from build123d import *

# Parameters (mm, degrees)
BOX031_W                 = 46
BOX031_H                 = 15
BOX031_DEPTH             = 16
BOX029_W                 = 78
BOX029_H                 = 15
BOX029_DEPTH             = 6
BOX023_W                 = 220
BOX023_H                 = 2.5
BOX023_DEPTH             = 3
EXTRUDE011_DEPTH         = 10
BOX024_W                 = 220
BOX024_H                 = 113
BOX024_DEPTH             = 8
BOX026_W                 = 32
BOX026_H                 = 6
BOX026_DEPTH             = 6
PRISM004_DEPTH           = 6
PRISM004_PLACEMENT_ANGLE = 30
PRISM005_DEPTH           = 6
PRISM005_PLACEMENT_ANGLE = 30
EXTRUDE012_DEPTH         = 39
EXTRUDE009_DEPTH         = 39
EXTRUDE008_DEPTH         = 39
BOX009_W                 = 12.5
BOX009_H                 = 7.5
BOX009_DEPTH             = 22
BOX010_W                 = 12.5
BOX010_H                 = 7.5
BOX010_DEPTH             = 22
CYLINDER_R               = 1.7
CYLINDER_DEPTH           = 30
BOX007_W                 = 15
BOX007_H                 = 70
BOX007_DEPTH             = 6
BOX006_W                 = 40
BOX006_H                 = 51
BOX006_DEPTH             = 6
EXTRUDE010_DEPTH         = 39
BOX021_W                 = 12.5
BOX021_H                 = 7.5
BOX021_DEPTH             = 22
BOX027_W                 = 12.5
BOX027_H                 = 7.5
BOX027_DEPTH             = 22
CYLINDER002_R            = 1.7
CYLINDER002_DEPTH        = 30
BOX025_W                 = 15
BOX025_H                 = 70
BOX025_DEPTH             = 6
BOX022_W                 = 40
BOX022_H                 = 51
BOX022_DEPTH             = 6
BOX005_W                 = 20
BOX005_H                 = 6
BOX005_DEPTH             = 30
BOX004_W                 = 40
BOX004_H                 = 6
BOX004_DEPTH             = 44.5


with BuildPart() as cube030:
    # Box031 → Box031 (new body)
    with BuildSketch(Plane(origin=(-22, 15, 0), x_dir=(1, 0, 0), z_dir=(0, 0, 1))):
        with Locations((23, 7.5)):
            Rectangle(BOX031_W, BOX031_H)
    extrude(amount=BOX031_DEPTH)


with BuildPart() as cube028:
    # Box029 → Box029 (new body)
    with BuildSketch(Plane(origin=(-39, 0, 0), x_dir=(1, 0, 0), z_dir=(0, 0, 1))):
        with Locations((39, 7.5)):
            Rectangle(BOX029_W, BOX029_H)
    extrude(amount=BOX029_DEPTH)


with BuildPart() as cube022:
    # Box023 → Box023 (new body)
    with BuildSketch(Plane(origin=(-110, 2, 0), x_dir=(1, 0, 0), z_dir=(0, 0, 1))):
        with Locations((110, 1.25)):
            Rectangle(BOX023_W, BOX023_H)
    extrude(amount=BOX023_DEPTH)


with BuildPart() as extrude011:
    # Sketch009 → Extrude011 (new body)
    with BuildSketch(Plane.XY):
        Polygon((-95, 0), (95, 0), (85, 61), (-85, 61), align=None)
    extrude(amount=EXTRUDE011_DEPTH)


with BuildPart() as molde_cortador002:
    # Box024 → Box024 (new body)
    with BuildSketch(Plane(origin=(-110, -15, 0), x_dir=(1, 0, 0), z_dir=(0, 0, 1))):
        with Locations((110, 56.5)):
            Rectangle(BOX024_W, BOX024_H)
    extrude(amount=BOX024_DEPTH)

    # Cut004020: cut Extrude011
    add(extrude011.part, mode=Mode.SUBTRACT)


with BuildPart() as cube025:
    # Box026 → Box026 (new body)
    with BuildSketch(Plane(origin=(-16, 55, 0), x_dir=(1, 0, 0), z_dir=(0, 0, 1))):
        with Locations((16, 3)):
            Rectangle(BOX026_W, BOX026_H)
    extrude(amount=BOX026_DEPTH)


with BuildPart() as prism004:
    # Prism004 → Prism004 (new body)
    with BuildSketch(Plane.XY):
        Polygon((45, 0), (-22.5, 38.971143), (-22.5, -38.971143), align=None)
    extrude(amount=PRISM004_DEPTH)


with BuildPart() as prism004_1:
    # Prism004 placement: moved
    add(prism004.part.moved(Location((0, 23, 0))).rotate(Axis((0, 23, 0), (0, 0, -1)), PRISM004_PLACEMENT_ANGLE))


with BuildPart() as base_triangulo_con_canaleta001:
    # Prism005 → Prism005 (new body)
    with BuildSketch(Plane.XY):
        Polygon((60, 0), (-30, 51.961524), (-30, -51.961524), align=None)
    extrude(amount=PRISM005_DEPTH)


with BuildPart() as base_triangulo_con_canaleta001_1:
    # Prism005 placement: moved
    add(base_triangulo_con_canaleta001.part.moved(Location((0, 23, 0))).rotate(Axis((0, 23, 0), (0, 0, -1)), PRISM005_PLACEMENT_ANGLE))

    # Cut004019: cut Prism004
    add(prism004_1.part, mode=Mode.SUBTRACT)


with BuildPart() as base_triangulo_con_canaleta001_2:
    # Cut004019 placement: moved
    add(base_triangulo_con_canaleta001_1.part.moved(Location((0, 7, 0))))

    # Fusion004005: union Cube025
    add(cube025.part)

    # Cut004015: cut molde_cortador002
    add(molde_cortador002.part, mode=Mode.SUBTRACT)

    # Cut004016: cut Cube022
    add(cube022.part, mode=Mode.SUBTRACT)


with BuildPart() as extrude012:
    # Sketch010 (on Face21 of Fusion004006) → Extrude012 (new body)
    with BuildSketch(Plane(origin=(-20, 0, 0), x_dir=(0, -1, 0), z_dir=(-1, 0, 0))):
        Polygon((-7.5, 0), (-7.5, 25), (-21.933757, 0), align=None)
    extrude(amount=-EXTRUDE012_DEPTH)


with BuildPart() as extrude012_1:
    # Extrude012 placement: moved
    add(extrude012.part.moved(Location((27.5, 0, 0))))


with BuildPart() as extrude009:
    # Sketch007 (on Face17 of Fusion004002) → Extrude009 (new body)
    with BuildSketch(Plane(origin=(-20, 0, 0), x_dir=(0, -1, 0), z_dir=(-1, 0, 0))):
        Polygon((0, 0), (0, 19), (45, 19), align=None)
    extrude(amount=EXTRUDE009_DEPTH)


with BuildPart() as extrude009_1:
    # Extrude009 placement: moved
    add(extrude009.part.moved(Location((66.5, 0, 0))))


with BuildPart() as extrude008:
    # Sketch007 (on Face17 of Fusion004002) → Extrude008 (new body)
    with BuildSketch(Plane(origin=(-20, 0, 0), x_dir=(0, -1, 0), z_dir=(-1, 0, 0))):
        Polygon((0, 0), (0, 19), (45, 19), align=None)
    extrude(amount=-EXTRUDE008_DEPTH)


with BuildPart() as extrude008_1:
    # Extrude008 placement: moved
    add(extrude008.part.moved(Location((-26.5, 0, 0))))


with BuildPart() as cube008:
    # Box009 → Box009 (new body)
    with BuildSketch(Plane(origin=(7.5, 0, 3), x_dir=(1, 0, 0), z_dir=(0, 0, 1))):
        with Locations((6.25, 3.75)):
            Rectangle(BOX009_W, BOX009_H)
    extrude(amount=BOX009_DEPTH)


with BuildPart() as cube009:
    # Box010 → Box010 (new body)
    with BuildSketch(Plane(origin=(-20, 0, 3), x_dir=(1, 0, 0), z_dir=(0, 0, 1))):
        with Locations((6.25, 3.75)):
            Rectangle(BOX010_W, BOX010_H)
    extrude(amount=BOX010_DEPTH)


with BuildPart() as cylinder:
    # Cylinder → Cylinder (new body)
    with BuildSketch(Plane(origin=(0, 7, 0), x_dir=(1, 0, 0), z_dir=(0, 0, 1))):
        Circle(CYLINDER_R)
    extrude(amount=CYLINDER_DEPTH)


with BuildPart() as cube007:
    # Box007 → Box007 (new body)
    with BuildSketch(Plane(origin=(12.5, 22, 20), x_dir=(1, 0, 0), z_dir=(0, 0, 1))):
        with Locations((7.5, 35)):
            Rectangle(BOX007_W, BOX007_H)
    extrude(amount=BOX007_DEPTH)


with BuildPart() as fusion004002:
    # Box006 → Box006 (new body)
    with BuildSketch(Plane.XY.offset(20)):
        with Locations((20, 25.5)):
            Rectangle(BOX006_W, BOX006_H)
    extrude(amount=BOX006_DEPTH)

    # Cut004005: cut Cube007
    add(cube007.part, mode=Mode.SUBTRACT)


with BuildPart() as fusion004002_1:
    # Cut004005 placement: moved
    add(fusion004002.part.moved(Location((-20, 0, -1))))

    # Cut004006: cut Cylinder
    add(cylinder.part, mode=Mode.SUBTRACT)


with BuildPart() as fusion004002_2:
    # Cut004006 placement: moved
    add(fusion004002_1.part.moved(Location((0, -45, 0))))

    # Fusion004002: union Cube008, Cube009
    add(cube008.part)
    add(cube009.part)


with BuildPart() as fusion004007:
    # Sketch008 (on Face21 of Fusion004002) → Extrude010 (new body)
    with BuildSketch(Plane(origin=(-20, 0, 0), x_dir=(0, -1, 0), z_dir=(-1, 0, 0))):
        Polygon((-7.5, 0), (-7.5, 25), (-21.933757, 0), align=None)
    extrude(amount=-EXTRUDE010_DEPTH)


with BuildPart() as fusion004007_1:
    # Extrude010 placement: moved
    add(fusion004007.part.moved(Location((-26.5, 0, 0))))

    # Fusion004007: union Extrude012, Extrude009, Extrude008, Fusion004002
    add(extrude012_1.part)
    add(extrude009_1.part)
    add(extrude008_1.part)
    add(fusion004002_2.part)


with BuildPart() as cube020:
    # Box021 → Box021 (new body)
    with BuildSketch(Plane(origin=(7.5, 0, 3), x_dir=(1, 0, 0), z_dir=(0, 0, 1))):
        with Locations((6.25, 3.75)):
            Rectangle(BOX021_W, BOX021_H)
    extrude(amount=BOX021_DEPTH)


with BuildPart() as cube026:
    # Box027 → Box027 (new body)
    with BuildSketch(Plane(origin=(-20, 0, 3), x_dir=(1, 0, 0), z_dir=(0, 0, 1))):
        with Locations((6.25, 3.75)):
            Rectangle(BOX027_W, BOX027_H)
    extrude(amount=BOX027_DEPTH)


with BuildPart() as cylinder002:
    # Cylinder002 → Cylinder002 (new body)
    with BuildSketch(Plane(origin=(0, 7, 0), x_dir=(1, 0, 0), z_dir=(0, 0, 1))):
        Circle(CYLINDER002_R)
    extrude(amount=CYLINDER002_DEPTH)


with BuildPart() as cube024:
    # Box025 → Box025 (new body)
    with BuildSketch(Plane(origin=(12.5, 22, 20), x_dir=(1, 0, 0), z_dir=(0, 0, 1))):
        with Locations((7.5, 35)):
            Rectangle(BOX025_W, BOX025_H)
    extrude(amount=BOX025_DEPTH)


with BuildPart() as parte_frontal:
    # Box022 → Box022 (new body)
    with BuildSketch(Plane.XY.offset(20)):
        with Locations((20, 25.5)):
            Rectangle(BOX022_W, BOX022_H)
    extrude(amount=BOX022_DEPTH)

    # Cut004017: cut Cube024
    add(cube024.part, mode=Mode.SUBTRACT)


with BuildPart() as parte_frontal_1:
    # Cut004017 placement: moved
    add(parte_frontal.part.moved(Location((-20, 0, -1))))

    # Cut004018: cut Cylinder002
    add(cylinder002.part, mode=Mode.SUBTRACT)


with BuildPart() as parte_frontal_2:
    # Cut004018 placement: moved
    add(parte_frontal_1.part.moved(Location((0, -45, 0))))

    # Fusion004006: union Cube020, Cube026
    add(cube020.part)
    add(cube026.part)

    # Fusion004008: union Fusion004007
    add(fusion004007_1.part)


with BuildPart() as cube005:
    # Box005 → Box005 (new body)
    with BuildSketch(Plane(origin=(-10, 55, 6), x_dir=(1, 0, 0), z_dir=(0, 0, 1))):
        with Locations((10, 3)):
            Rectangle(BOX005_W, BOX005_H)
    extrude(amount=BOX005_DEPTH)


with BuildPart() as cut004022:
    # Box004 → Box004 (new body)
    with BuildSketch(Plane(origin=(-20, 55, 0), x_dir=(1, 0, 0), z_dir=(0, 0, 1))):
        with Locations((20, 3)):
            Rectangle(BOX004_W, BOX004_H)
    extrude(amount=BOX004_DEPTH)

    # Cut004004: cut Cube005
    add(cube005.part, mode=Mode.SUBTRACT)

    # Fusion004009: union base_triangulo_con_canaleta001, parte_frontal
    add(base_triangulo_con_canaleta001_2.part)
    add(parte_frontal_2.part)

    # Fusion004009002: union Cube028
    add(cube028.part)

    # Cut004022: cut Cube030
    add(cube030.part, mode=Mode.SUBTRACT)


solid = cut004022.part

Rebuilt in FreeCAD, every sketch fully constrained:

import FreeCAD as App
import Part
import Sketcher

V = App.Vector
Q = App.Units.Quantity

doc = App.newDocument("Part")
body = doc.addObject("PartDesign::Body", "Body")

# Sketch on XY plane
sketch1 = body.newObject("Sketcher::SketchObject", "Sketch")
sketch1.AttachmentSupport = (doc.getObject("XY_Plane"), [""])
sketch1.MapMode = "FlatFace"
sketch1.addGeometry([
    Part.LineSegment(V(-22, 30, 0), V(-22, 15, 0)),
    Part.LineSegment(V(-22, 15, 0), V(24, 15, 0)),
    Part.LineSegment(V(24, 15, 0), V(24, 30, 0)),
    Part.LineSegment(V(24, 30, 0), V(-22, 30, 0)),
], False)
sketch1.addConstraint([
    Sketcher.Constraint("Coincident", 0, 2, 1, 1),
    Sketcher.Constraint("Coincident", 1, 2, 2, 1),
    Sketcher.Constraint("Coincident", 2, 2, 3, 1),
    Sketcher.Constraint("Coincident", 3, 2, 0, 1),
    Sketcher.Constraint("Vertical", 0),
    Sketcher.Constraint("Horizontal", 1),
    Sketcher.Constraint("Vertical", 2),
    Sketcher.Constraint("Horizontal", 3),
    Sketcher.Constraint("DistanceX", 1, 1, 1, 2, 46.0),
    Sketcher.Constraint("DistanceY", 0, 2, 0, 1, 15.0),
    Sketcher.Constraint("DistanceX", 0, 2, -1, 1, 22.0),
    Sketcher.Constraint("DistanceY", -1, 1, 0, 2, 15.0),
])
pad1 = body.newObject("PartDesign::Pad", "Pad")
pad1.Profile = sketch1
pad1.Length = 16
body2 = doc.addObject("PartDesign::Body", "Body001")

# Sketch on XY plane
sketch2 = body2.newObject("Sketcher::SketchObject", "Sketch001")
sketch2.AttachmentSupport = (doc.getObject("XY_Plane001"), [""])
sketch2.MapMode = "FlatFace"
sketch2.addGeometry([
    Part.LineSegment(V(-39, 15, 0), V(-39, 0, 0)),
    Part.LineSegment(V(-39, 0, 0), V(39, 0, 0)),
    Part.LineSegment(V(39, 0, 0), V(39, 15, 0)),
    Part.LineSegment(V(39, 15, 0), V(-39, 15, 0)),
], False)
sketch2.addConstraint([
    Sketcher.Constraint("Coincident", 0, 2, 1, 1),
    Sketcher.Constraint("Coincident", 1, 2, 2, 1),
    Sketcher.Constraint("Coincident", 2, 2, 3, 1),
    Sketcher.Constraint("Coincident", 3, 2, 0, 1),
    Sketcher.Constraint("Vertical", 0),
    Sketcher.Constraint("Horizontal", 1),
    Sketcher.Constraint("Vertical", 2),
    Sketcher.Constraint("Horizontal", 3),
    Sketcher.Constraint("Symmetric", 0, 2, 1, 2, -1, 1),
    Sketcher.Constraint("DistanceX", 1, 1, 1, 2, 78.0),
    Sketcher.Constraint("DistanceY", 0, 2, 0, 1, 15.0),
])
pad2 = body2.newObject("PartDesign::Pad", "Pad001")
pad2.Profile = sketch2
pad2.Length = 6
body3 = doc.addObject("PartDesign::Body", "Body002")

# Sketch on XY plane
sketch3 = body3.newObject("Sketcher::SketchObject", "Sketch002")
sketch3.AttachmentSupport = (doc.getObject("XY_Plane002"), [""])
sketch3.MapMode = "FlatFace"
sketch3.addGeometry([
    Part.LineSegment(V(-110, 4.5, 0), V(-110, 2, 0)),
    Part.LineSegment(V(-110, 2, 0), V(110, 2, 0)),
    Part.LineSegment(V(110, 2, 0), V(110, 4.5, 0)),
    Part.LineSegment(V(110, 4.5, 0), V(-110, 4.5, 0)),
], False)
sketch3.addConstraint([
    Sketcher.Constraint("Coincident", 0, 2, 1, 1),
    Sketcher.Constraint("Coincident", 1, 2, 2, 1),
    Sketcher.Constraint("Coincident", 2, 2, 3, 1),
    Sketcher.Constraint("Coincident", 3, 2, 0, 1),
    Sketcher.Constraint("Vertical", 0),
    Sketcher.Constraint("Horizontal", 1),
    Sketcher.Constraint("Vertical", 2),
    Sketcher.Constraint("Horizontal", 3),
    Sketcher.Constraint("DistanceX", 1, 1, 1, 2, 220.0),
    Sketcher.Constraint("DistanceY", 0, 2, 0, 1, 2.5),
    Sketcher.Constraint("DistanceX", 0, 2, -1, 1, 110.0),
    Sketcher.Constraint("DistanceY", -1, 1, 0, 2, 2.0),
])
pad3 = body3.newObject("PartDesign::Pad", "Pad002")
pad3.Profile = sketch3
pad3.Length = 3
body4 = doc.addObject("PartDesign::Body", "Body003")

# Sketch on XY plane
sketch4 = body4.newObject("Sketcher::SketchObject", "Sketch003")
sketch4.AttachmentSupport = (doc.getObject("XY_Plane003"), [""])
sketch4.MapMode = "FlatFace"
sketch4.addGeometry([
    Part.LineSegment(V(-95, 0, 0), V(95, 0, 0)),
    Part.LineSegment(V(95, 0, 0), V(85, 61, 0)),
    Part.LineSegment(V(85, 61, 0), V(-85, 61, 0)),
    Part.LineSegment(V(-85, 61, 0), V(-95, 0, 0)),
], False)
sketch4.addConstraint([
    Sketcher.Constraint("Coincident", 0, 2, 1, 1),
    Sketcher.Constraint("Coincident", 1, 2, 2, 1),
    Sketcher.Constraint("Coincident", 2, 2, 3, 1),
    Sketcher.Constraint("Coincident", 3, 2, 0, 1),
    Sketcher.Constraint("Horizontal", 0),
    Sketcher.Constraint("Horizontal", 2),
    Sketcher.Constraint("Symmetric", 0, 2, 3, 2, -1, 1),
    Sketcher.Constraint("Equal", 1, 3),
    Sketcher.Constraint("DistanceX", 0, 1, 0, 2, 190.0),
    Sketcher.Constraint("DistanceX", 2, 2, 2, 1, 170.0),
    Sketcher.Constraint("DistanceY", -1, 1, 1, 2, 61.0),
])
pad4 = body4.newObject("PartDesign::Pad", "Pad003")
pad4.Profile = sketch4
pad4.Length = 10
body5 = doc.addObject("PartDesign::Body", "Body004")

# Sketch on XY plane
sketch5 = body5.newObject("Sketcher::SketchObject", "Sketch004")
sketch5.AttachmentSupport = (doc.getObject("XY_Plane004"), [""])
sketch5.MapMode = "FlatFace"
sketch5.addGeometry([
    Part.LineSegment(V(-110, 98, 0), V(-110, -15, 0)),
    Part.LineSegment(V(-110, -15, 0), V(110, -15, 0)),
    Part.LineSegment(V(110, -15, 0), V(110, 98, 0)),
    Part.LineSegment(V(110, 98, 0), V(-110, 98, 0)),
], False)
sketch5.addConstraint([
    Sketcher.Constraint("Coincident", 0, 2, 1, 1),
    Sketcher.Constraint("Coincident", 1, 2, 2, 1),
    Sketcher.Constraint("Coincident", 2, 2, 3, 1),
    Sketcher.Constraint("Coincident", 3, 2, 0, 1),
    Sketcher.Constraint("Vertical", 0),
    Sketcher.Constraint("Horizontal", 1),
    Sketcher.Constraint("Vertical", 2),
    Sketcher.Constraint("Horizontal", 3),
    Sketcher.Constraint("DistanceX", 1, 1, 1, 2, 220.0),
    Sketcher.Constraint("DistanceY", 0, 2, 0, 1, 113.0),
    Sketcher.Constraint("DistanceX", 0, 2, -1, 1, 110.0),
    Sketcher.Constraint("DistanceY", 0, 2, -1, 1, 15.0),
])
pad5 = body5.newObject("PartDesign::Pad", "Pad004")
pad5.Profile = sketch5
pad5.Length = 8
doc.recompute()

boolean = body5.newObject("PartDesign::Boolean", "Boolean")
boolean.Type = "Cut"
boolean.addObjects([body4])
body6 = doc.addObject("PartDesign::Body", "Body005")

# Sketch on XY plane
sketch6 = body6.newObject("Sketcher::SketchObject", "Sketch005")
sketch6.AttachmentSupport = (doc.getObject("XY_Plane005"), [""])
sketch6.MapMode = "FlatFace"
sketch6.addGeometry([
    Part.LineSegment(V(-16, 61, 0), V(-16, 55, 0)),
    Part.LineSegment(V(-16, 55, 0), V(16, 55, 0)),
    Part.LineSegment(V(16, 55, 0), V(16, 61, 0)),
    Part.LineSegment(V(16, 61, 0), V(-16, 61, 0)),
], False)
sketch6.addConstraint([
    Sketcher.Constraint("Coincident", 0, 2, 1, 1),
    Sketcher.Constraint("Coincident", 1, 2, 2, 1),
    Sketcher.Constraint("Coincident", 2, 2, 3, 1),
    Sketcher.Constraint("Coincident", 3, 2, 0, 1),
    Sketcher.Constraint("Vertical", 0),
    Sketcher.Constraint("Horizontal", 1),
    Sketcher.Constraint("Vertical", 2),
    Sketcher.Constraint("Horizontal", 3),
    Sketcher.Constraint("DistanceX", 1, 1, 1, 2, 32.0),
    Sketcher.Constraint("DistanceY", 0, 2, 0, 1, 6.0),
    Sketcher.Constraint("DistanceX", 0, 2, -1, 1, 16.0),
    Sketcher.Constraint("DistanceY", -1, 1, 0, 2, 55.0),
])
pad6 = body6.newObject("PartDesign::Pad", "Pad005")
pad6.Profile = sketch6
pad6.Length = 6
body7 = doc.addObject("PartDesign::Body", "Body006")

# Sketch on XY plane
sketch7 = body7.newObject("Sketcher::SketchObject", "Sketch006")
sketch7.AttachmentSupport = (doc.getObject("XY_Plane006"), [""])
sketch7.MapMode = "FlatFace"
sketch7.addGeometry([
    Part.LineSegment(V(45, 0, 0), V(-22.5, 38.971143, 0)),
    Part.LineSegment(V(-22.5, 38.971143, 0), V(-22.5, -38.971143, 0)),
    Part.LineSegment(V(-22.5, -38.971143, 0), V(45, 0, 0)),
], False)
sketch7.addConstraint([
    Sketcher.Constraint("Coincident", 0, 2, 1, 1),
    Sketcher.Constraint("Coincident", 1, 2, 2, 1),
    Sketcher.Constraint("Coincident", 2, 2, 0, 1),
    Sketcher.Constraint("Vertical", 1),
    Sketcher.Constraint("PointOnObject", 2, 2, -1),
    Sketcher.Constraint("Equal", 0, 2),
    Sketcher.Constraint("Angle", 0, Q("150 deg")),
    Sketcher.Constraint("DistanceX", -1, 1, 2, 2, 45.0),
    Sketcher.Constraint("DistanceX", 0, 2, -1, 1, 22.5),
])
pad7 = body7.newObject("PartDesign::Pad", "Pad006")
pad7.Profile = sketch7
pad7.Length = 6
body8 = doc.addObject("PartDesign::Body", "Body007")
doc.recompute()

body7.Placement = App.Placement(V(0, 23, 0), App.Rotation(V(0, 0, -1), 30))
boolean2 = body8.newObject("PartDesign::Boolean", "Boolean001")
boolean2.Type = "Fuse"
boolean2.addObjects([body7])
body9 = doc.addObject("PartDesign::Body", "Body008")

# Sketch on XY plane
sketch8 = body9.newObject("Sketcher::SketchObject", "Sketch007")
sketch8.AttachmentSupport = (doc.getObject("XY_Plane008"), [""])
sketch8.MapMode = "FlatFace"
sketch8.addGeometry([
    Part.LineSegment(V(60, 0, 0), V(-30, 51.961524, 0)),
    Part.LineSegment(V(-30, 51.961524, 0), V(-30, -51.961524, 0)),
    Part.LineSegment(V(-30, -51.961524, 0), V(60, 0, 0)),
], False)
sketch8.addConstraint([
    Sketcher.Constraint("Coincident", 0, 2, 1, 1),
    Sketcher.Constraint("Coincident", 1, 2, 2, 1),
    Sketcher.Constraint("Coincident", 2, 2, 0, 1),
    Sketcher.Constraint("Vertical", 1),
    Sketcher.Constraint("PointOnObject", 2, 2, -1),
    Sketcher.Constraint("Equal", 0, 2),
    Sketcher.Constraint("Angle", 0, Q("150 deg")),
    Sketcher.Constraint("DistanceX", 0, 2, -1, 1, 30.0),
    Sketcher.Constraint("DistanceX", -1, 1, 2, 2, 60.0),
])
pad8 = body9.newObject("PartDesign::Pad", "Pad007")
pad8.Profile = sketch8
pad8.Length = 6
body10 = doc.addObject("PartDesign::Body", "Body009")
doc.recompute()

body9.Placement = App.Placement(V(0, 23, 0), App.Rotation(V(0, 0, -1), 30))
boolean3 = body10.newObject("PartDesign::Boolean", "Boolean002")
boolean3.Type = "Fuse"
boolean3.addObjects([body9])
doc.recompute()

boolean4 = body10.newObject("PartDesign::Boolean", "Boolean003")
boolean4.Type = "Cut"
boolean4.addObjects([body8])
body11 = doc.addObject("PartDesign::Body", "Body010")
doc.recompute()

body10.Placement = App.Placement(V(0, 7, 0), App.Rotation(V(0, 0, 1), 0))
boolean5 = body11.newObject("PartDesign::Boolean", "Boolean004")
boolean5.Type = "Fuse"
boolean5.addObjects([body10])
doc.recompute()

boolean6 = body11.newObject("PartDesign::Boolean", "Boolean005")
boolean6.Type = "Fuse"
boolean6.addObjects([body6])
doc.recompute()

boolean7 = body11.newObject("PartDesign::Boolean", "Boolean006")
boolean7.Type = "Cut"
boolean7.addObjects([body5])
doc.recompute()

boolean8 = body11.newObject("PartDesign::Boolean", "Boolean007")
boolean8.Type = "Cut"
boolean8.addObjects([body3])
body12 = doc.addObject("PartDesign::Body", "Body011")

# Sketch on YZ plane
sketch9 = body12.newObject("Sketcher::SketchObject", "Sketch008")
sketch9.AttachmentSupport = (doc.getObject("YZ_Plane011"), [""])
sketch9.MapMode = "FlatFace"
sketch9.AttachmentOffset = App.Placement(V(0, 0, -20), App.Rotation())
sketch9.addGeometry([
    Part.LineSegment(V(7.5, 0, 0), V(7.5, 25, 0)),
    Part.LineSegment(V(7.5, 25, 0), V(21.933757, 0, 0)),
    Part.LineSegment(V(21.933757, 0, 0), V(7.5, 0, 0)),
], False)
sketch9.addConstraint([
    Sketcher.Constraint("Coincident", 0, 2, 1, 1),
    Sketcher.Constraint("Coincident", 1, 2, 2, 1),
    Sketcher.Constraint("Coincident", 2, 2, 0, 1),
    Sketcher.Constraint("Vertical", 0),
    Sketcher.Constraint("Horizontal", 2),
    Sketcher.Constraint("PointOnObject", 1, 2, -1),
    Sketcher.Constraint("DistanceY", 0, 1, 0, 2, 25.0),
    Sketcher.Constraint("Angle", 1, Q("-60 deg")),
    Sketcher.Constraint("DistanceX", -1, 1, 0, 2, 7.5),
])
pad9 = body12.newObject("PartDesign::Pad", "Pad008")
pad9.Profile = sketch9
pad9.Length = 39
body13 = doc.addObject("PartDesign::Body", "Body012")
doc.recompute()

body12.Placement = App.Placement(V(27.5, 0, 0), App.Rotation(V(0, 0, 1), 0))
boolean9 = body13.newObject("PartDesign::Boolean", "Boolean008")
boolean9.Type = "Fuse"
boolean9.addObjects([body12])
body14 = doc.addObject("PartDesign::Body", "Body013")

# Sketch on YZ plane
sketch10 = body14.newObject("Sketcher::SketchObject", "Sketch009")
sketch10.AttachmentSupport = (doc.getObject("YZ_Plane013"), [""])
sketch10.MapMode = "FlatFace"
sketch10.AttachmentOffset = App.Placement(V(0, 0, -20), App.Rotation())
sketch10.addGeometry([
    Part.LineSegment(V(0, 19, 0), V(0, 0, 0)),
    Part.LineSegment(V(0, 0, 0), V(-45, 19, 0)),
    Part.LineSegment(V(-45, 19, 0), V(0, 19, 0)),
], False)
sketch10.addConstraint([
    Sketcher.Constraint("Coincident", 0, 2, 1, 1),
    Sketcher.Constraint("Coincident", 1, 2, 2, 1),
    Sketcher.Constraint("Coincident", 2, 2, 0, 1),
    Sketcher.Constraint("Vertical", 0),
    Sketcher.Constraint("Horizontal", 2),
    Sketcher.Constraint("Coincident", 0, 2, -1, 1),
    Sketcher.Constraint("DistanceX", 2, 1, 2, 2, 45.0),
    Sketcher.Constraint("DistanceY", 0, 2, 0, 1, 19.0),
])
pad10 = body14.newObject("PartDesign::Pad", "Pad009")
pad10.Profile = sketch10
pad10.Length = 39
pad10.Reversed = True
body15 = doc.addObject("PartDesign::Body", "Body014")
doc.recompute()

body14.Placement = App.Placement(V(66.5, 0, 0), App.Rotation(V(0, 0, 1), 0))
boolean10 = body15.newObject("PartDesign::Boolean", "Boolean009")
boolean10.Type = "Fuse"
boolean10.addObjects([body14])
body16 = doc.addObject("PartDesign::Body", "Body015")

# Sketch on YZ plane
sketch11 = body16.newObject("Sketcher::SketchObject", "Sketch010")
sketch11.AttachmentSupport = (doc.getObject("YZ_Plane015"), [""])
sketch11.MapMode = "FlatFace"
sketch11.AttachmentOffset = App.Placement(V(0, 0, -20), App.Rotation())
sketch11.addGeometry([
    Part.LineSegment(V(0, 19, 0), V(0, 0, 0)),
    Part.LineSegment(V(0, 0, 0), V(-45, 19, 0)),
    Part.LineSegment(V(-45, 19, 0), V(0, 19, 0)),
], False)
sketch11.addConstraint([
    Sketcher.Constraint("Coincident", 0, 2, 1, 1),
    Sketcher.Constraint("Coincident", 1, 2, 2, 1),
    Sketcher.Constraint("Coincident", 2, 2, 0, 1),
    Sketcher.Constraint("Vertical", 0),
    Sketcher.Constraint("Horizontal", 2),
    Sketcher.Constraint("Coincident", 0, 2, -1, 1),
    Sketcher.Constraint("DistanceX", 2, 1, 2, 2, 45.0),
    Sketcher.Constraint("DistanceY", 0, 2, 0, 1, 19.0),
])
pad11 = body16.newObject("PartDesign::Pad", "Pad010")
pad11.Profile = sketch11
pad11.Length = 39
body17 = doc.addObject("PartDesign::Body", "Body016")
doc.recompute()

body16.Placement = App.Placement(V(-26.5, 0, 0), App.Rotation(V(0, 0, 1), 0))
boolean11 = body17.newObject("PartDesign::Boolean", "Boolean010")
boolean11.Type = "Fuse"
boolean11.addObjects([body16])
body18 = doc.addObject("PartDesign::Body", "Body017")

# Sketch on XY plane
sketch12 = body18.newObject("Sketcher::SketchObject", "Sketch011")
sketch12.AttachmentSupport = (doc.getObject("XY_Plane017"), [""])
sketch12.MapMode = "FlatFace"
sketch12.AttachmentOffset = App.Placement(V(0, 0, 3), App.Rotation())
sketch12.addGeometry([
    Part.LineSegment(V(7.5, 7.5, 0), V(7.5, 0, 0)),
    Part.LineSegment(V(7.5, 0, 0), V(20, 0, 0)),
    Part.LineSegment(V(20, 0, 0), V(20, 7.5, 0)),
    Part.LineSegment(V(20, 7.5, 0), V(7.5, 7.5, 0)),
], False)
sketch12.addConstraint([
    Sketcher.Constraint("Coincident", 0, 2, 1, 1),
    Sketcher.Constraint("Coincident", 1, 2, 2, 1),
    Sketcher.Constraint("Coincident", 2, 2, 3, 1),
    Sketcher.Constraint("Coincident", 3, 2, 0, 1),
    Sketcher.Constraint("Vertical", 0),
    Sketcher.Constraint("Horizontal", 1),
    Sketcher.Constraint("Vertical", 2),
    Sketcher.Constraint("Horizontal", 3),
    Sketcher.Constraint("PointOnObject", 0, 2, -1),
    Sketcher.Constraint("DistanceX", 1, 1, 1, 2, 12.5),
    Sketcher.Constraint("DistanceY", 0, 2, 0, 1, 7.5),
    Sketcher.Constraint("DistanceX", -1, 1, 1, 2, 20.0),
])
pad12 = body18.newObject("PartDesign::Pad", "Pad011")
pad12.Profile = sketch12
pad12.Length = 22
body19 = doc.addObject("PartDesign::Body", "Body018")

# Sketch on XY plane
sketch13 = body19.newObject("Sketcher::SketchObject", "Sketch012")
sketch13.AttachmentSupport = (doc.getObject("XY_Plane018"), [""])
sketch13.MapMode = "FlatFace"
sketch13.AttachmentOffset = App.Placement(V(0, 0, 3), App.Rotation())
sketch13.addGeometry([
    Part.LineSegment(V(-20, 7.5, 0), V(-20, 0, 0)),
    Part.LineSegment(V(-20, 0, 0), V(-7.5, 0, 0)),
    Part.LineSegment(V(-7.5, 0, 0), V(-7.5, 7.5, 0)),
    Part.LineSegment(V(-7.5, 7.5, 0), V(-20, 7.5, 0)),
], False)
sketch13.addConstraint([
    Sketcher.Constraint("Coincident", 0, 2, 1, 1),
    Sketcher.Constraint("Coincident", 1, 2, 2, 1),
    Sketcher.Constraint("Coincident", 2, 2, 3, 1),
    Sketcher.Constraint("Coincident", 3, 2, 0, 1),
    Sketcher.Constraint("Vertical", 0),
    Sketcher.Constraint("Horizontal", 1),
    Sketcher.Constraint("Vertical", 2),
    Sketcher.Constraint("Horizontal", 3),
    Sketcher.Constraint("PointOnObject", 0, 2, -1),
    Sketcher.Constraint("DistanceX", 1, 1, 1, 2, 12.5),
    Sketcher.Constraint("DistanceY", 0, 2, 0, 1, 7.5),
    Sketcher.Constraint("DistanceX", 0, 2, -1, 1, 20.0),
])
pad13 = body19.newObject("PartDesign::Pad", "Pad012")
pad13.Profile = sketch13
pad13.Length = 22
body20 = doc.addObject("PartDesign::Body", "Body019")

# Sketch on XY plane
sketch14 = body20.newObject("Sketcher::SketchObject", "Sketch013")
sketch14.AttachmentSupport = (doc.getObject("XY_Plane019"), [""])
sketch14.MapMode = "FlatFace"
sketch14.addGeometry(Part.Circle(V(0, 7, 0), V(0, 0, 1), 1.7), False)
sketch14.addConstraint([
    Sketcher.Constraint("PointOnObject", 0, 3, -2),
    Sketcher.Constraint("Diameter", 0, 3.4),
    Sketcher.Constraint("DistanceY", -1, 1, 0, 3, 7.0),
])
pad14 = body20.newObject("PartDesign::Pad", "Pad013")
pad14.Profile = sketch14
pad14.Length = 30
body21 = doc.addObject("PartDesign::Body", "Body020")

# Sketch on XY plane
sketch15 = body21.newObject("Sketcher::SketchObject", "Sketch014")
sketch15.AttachmentSupport = (doc.getObject("XY_Plane020"), [""])
sketch15.MapMode = "FlatFace"
sketch15.AttachmentOffset = App.Placement(V(0, 0, 20), App.Rotation())
sketch15.addGeometry([
    Part.LineSegment(V(12.5, 92, 0), V(12.5, 22, 0)),
    Part.LineSegment(V(12.5, 22, 0), V(27.5, 22, 0)),
    Part.LineSegment(V(27.5, 22, 0), V(27.5, 92, 0)),
    Part.LineSegment(V(27.5, 92, 0), V(12.5, 92, 0)),
], False)
sketch15.addConstraint([
    Sketcher.Constraint("Coincident", 0, 2, 1, 1),
    Sketcher.Constraint("Coincident", 1, 2, 2, 1),
    Sketcher.Constraint("Coincident", 2, 2, 3, 1),
    Sketcher.Constraint("Coincident", 3, 2, 0, 1),
    Sketcher.Constraint("Vertical", 0),
    Sketcher.Constraint("Horizontal", 1),
    Sketcher.Constraint("Vertical", 2),
    Sketcher.Constraint("Horizontal", 3),
    Sketcher.Constraint("DistanceX", 1, 1, 1, 2, 15.0),
    Sketcher.Constraint("DistanceY", 0, 2, 0, 1, 70.0),
    Sketcher.Constraint("DistanceY", -1, 1, 0, 2, 22.0),
    Sketcher.Constraint("DistanceX", -1, 1, 0, 2, 12.5),
])
pad15 = body21.newObject("PartDesign::Pad", "Pad014")
pad15.Profile = sketch15
pad15.Length = 6
body22 = doc.addObject("PartDesign::Body", "Body021")

# Sketch on XY plane
sketch16 = body22.newObject("Sketcher::SketchObject", "Sketch015")
sketch16.AttachmentSupport = (doc.getObject("XY_Plane021"), [""])
sketch16.MapMode = "FlatFace"
sketch16.AttachmentOffset = App.Placement(V(0, 0, 20), App.Rotation())
sketch16.addGeometry([
    Part.LineSegment(V(0, 51, 0), V(0, 0, 0)),
    Part.LineSegment(V(0, 0, 0), V(40, 0, 0)),
    Part.LineSegment(V(40, 0, 0), V(40, 51, 0)),
    Part.LineSegment(V(40, 51, 0), V(0, 51, 0)),
], False)
sketch16.addConstraint([
    Sketcher.Constraint("Coincident", 0, 2, 1, 1),
    Sketcher.Constraint("Coincident", 1, 2, 2, 1),
    Sketcher.Constraint("Coincident", 2, 2, 3, 1),
    Sketcher.Constraint("Coincident", 3, 2, 0, 1),
    Sketcher.Constraint("Vertical", 0),
    Sketcher.Constraint("Horizontal", 1),
    Sketcher.Constraint("Vertical", 2),
    Sketcher.Constraint("Horizontal", 3),
    Sketcher.Constraint("Coincident", 0, 2, -1, 1),
    Sketcher.Constraint("DistanceX", 1, 1, 1, 2, 40.0),
    Sketcher.Constraint("DistanceY", 0, 2, 0, 1, 51.0),
])
pad16 = body22.newObject("PartDesign::Pad", "Pad015")
pad16.Profile = sketch16
pad16.Length = 6
doc.recompute()

boolean12 = body22.newObject("PartDesign::Boolean", "Boolean011")
boolean12.Type = "Cut"
boolean12.addObjects([body21])
body23 = doc.addObject("PartDesign::Body", "Body022")
doc.recompute()

body22.Placement = App.Placement(V(-20, 0, -1), App.Rotation(V(0, 0, 1), 0))
boolean13 = body23.newObject("PartDesign::Boolean", "Boolean012")
boolean13.Type = "Fuse"
boolean13.addObjects([body22])
doc.recompute()

boolean14 = body23.newObject("PartDesign::Boolean", "Boolean013")
boolean14.Type = "Cut"
boolean14.addObjects([body20])
body24 = doc.addObject("PartDesign::Body", "Body023")
doc.recompute()

body23.Placement = App.Placement(V(0, -45, 0), App.Rotation(V(0, 0, 1), 0))
boolean15 = body24.newObject("PartDesign::Boolean", "Boolean014")
boolean15.Type = "Fuse"
boolean15.addObjects([body23])
doc.recompute()

boolean16 = body24.newObject("PartDesign::Boolean", "Boolean015")
boolean16.Type = "Fuse"
boolean16.addObjects([body18])
doc.recompute()

boolean17 = body24.newObject("PartDesign::Boolean", "Boolean016")
boolean17.Type = "Fuse"
boolean17.addObjects([body19])
body25 = doc.addObject("PartDesign::Body", "Body024")

# Sketch on YZ plane
sketch17 = body25.newObject("Sketcher::SketchObject", "Sketch016")
sketch17.AttachmentSupport = (doc.getObject("YZ_Plane024"), [""])
sketch17.MapMode = "FlatFace"
sketch17.AttachmentOffset = App.Placement(V(0, 0, -20), App.Rotation())
sketch17.addGeometry([
    Part.LineSegment(V(7.5, 0, 0), V(7.5, 25, 0)),
    Part.LineSegment(V(7.5, 25, 0), V(21.933757, 0, 0)),
    Part.LineSegment(V(21.933757, 0, 0), V(7.5, 0, 0)),
], False)
sketch17.addConstraint([
    Sketcher.Constraint("Coincident", 0, 2, 1, 1),
    Sketcher.Constraint("Coincident", 1, 2, 2, 1),
    Sketcher.Constraint("Coincident", 2, 2, 0, 1),
    Sketcher.Constraint("Vertical", 0),
    Sketcher.Constraint("Horizontal", 2),
    Sketcher.Constraint("PointOnObject", 1, 2, -1),
    Sketcher.Constraint("DistanceY", 0, 1, 0, 2, 25.0),
    Sketcher.Constraint("Angle", 1, Q("-60 deg")),
    Sketcher.Constraint("DistanceX", -1, 1, 0, 2, 7.5),
])
pad17 = body25.newObject("PartDesign::Pad", "Pad016")
pad17.Profile = sketch17
pad17.Length = 39
body26 = doc.addObject("PartDesign::Body", "Body025")
body26.AllowCompound = True
doc.recompute()

body25.Placement = App.Placement(V(-26.5, 0, 0), App.Rotation(V(0, 0, 1), 0))
boolean18 = body26.newObject("PartDesign::Boolean", "Boolean017")
boolean18.Type = "Fuse"
boolean18.addObjects([body25])
doc.recompute()

boolean19 = body26.newObject("PartDesign::Boolean", "Boolean018")
boolean19.Type = "Fuse"
boolean19.addObjects([body13])
doc.recompute()

boolean20 = body26.newObject("PartDesign::Boolean", "Boolean019")
boolean20.Type = "Fuse"
boolean20.addObjects([body15])
doc.recompute()

boolean21 = body26.newObject("PartDesign::Boolean", "Boolean020")
boolean21.Type = "Fuse"
boolean21.addObjects([body17])
doc.recompute()

boolean22 = body26.newObject("PartDesign::Boolean", "Boolean021")
boolean22.Type = "Fuse"
boolean22.addObjects([body24])
body27 = doc.addObject("PartDesign::Body", "Body026")

# Sketch on XY plane
sketch18 = body27.newObject("Sketcher::SketchObject", "Sketch017")
sketch18.AttachmentSupport = (doc.getObject("XY_Plane026"), [""])
sketch18.MapMode = "FlatFace"
sketch18.AttachmentOffset = App.Placement(V(0, 0, 3), App.Rotation())
sketch18.addGeometry([
    Part.LineSegment(V(7.5, 7.5, 0), V(7.5, 0, 0)),
    Part.LineSegment(V(7.5, 0, 0), V(20, 0, 0)),
    Part.LineSegment(V(20, 0, 0), V(20, 7.5, 0)),
    Part.LineSegment(V(20, 7.5, 0), V(7.5, 7.5, 0)),
], False)
sketch18.addConstraint([
    Sketcher.Constraint("Coincident", 0, 2, 1, 1),
    Sketcher.Constraint("Coincident", 1, 2, 2, 1),
    Sketcher.Constraint("Coincident", 2, 2, 3, 1),
    Sketcher.Constraint("Coincident", 3, 2, 0, 1),
    Sketcher.Constraint("Vertical", 0),
    Sketcher.Constraint("Horizontal", 1),
    Sketcher.Constraint("Vertical", 2),
    Sketcher.Constraint("Horizontal", 3),
    Sketcher.Constraint("PointOnObject", 0, 2, -1),
    Sketcher.Constraint("DistanceX", 1, 1, 1, 2, 12.5),
    Sketcher.Constraint("DistanceY", 0, 2, 0, 1, 7.5),
    Sketcher.Constraint("DistanceX", -1, 1, 1, 2, 20.0),
])
pad18 = body27.newObject("PartDesign::Pad", "Pad017")
pad18.Profile = sketch18
pad18.Length = 22
body28 = doc.addObject("PartDesign::Body", "Body027")

# Sketch on XY plane
sketch19 = body28.newObject("Sketcher::SketchObject", "Sketch018")
sketch19.AttachmentSupport = (doc.getObject("XY_Plane027"), [""])
sketch19.MapMode = "FlatFace"
sketch19.AttachmentOffset = App.Placement(V(0, 0, 3), App.Rotation())
sketch19.addGeometry([
    Part.LineSegment(V(-20, 7.5, 0), V(-20, 0, 0)),
    Part.LineSegment(V(-20, 0, 0), V(-7.5, 0, 0)),
    Part.LineSegment(V(-7.5, 0, 0), V(-7.5, 7.5, 0)),
    Part.LineSegment(V(-7.5, 7.5, 0), V(-20, 7.5, 0)),
], False)
sketch19.addConstraint([
    Sketcher.Constraint("Coincident", 0, 2, 1, 1),
    Sketcher.Constraint("Coincident", 1, 2, 2, 1),
    Sketcher.Constraint("Coincident", 2, 2, 3, 1),
    Sketcher.Constraint("Coincident", 3, 2, 0, 1),
    Sketcher.Constraint("Vertical", 0),
    Sketcher.Constraint("Horizontal", 1),
    Sketcher.Constraint("Vertical", 2),
    Sketcher.Constraint("Horizontal", 3),
    Sketcher.Constraint("PointOnObject", 0, 2, -1),
    Sketcher.Constraint("DistanceX", 1, 1, 1, 2, 12.5),
    Sketcher.Constraint("DistanceY", 0, 2, 0, 1, 7.5),
    Sketcher.Constraint("DistanceX", 0, 2, -1, 1, 20.0),
])
pad19 = body28.newObject("PartDesign::Pad", "Pad018")
pad19.Profile = sketch19
pad19.Length = 22
body29 = doc.addObject("PartDesign::Body", "Body028")

# Sketch on XY plane
sketch20 = body29.newObject("Sketcher::SketchObject", "Sketch019")
sketch20.AttachmentSupport = (doc.getObject("XY_Plane028"), [""])
sketch20.MapMode = "FlatFace"
sketch20.addGeometry(Part.Circle(V(0, 7, 0), V(0, 0, 1), 1.7), False)
sketch20.addConstraint([
    Sketcher.Constraint("PointOnObject", 0, 3, -2),
    Sketcher.Constraint("Diameter", 0, 3.4),
    Sketcher.Constraint("DistanceY", -1, 1, 0, 3, 7.0),
])
pad20 = body29.newObject("PartDesign::Pad", "Pad019")
pad20.Profile = sketch20
pad20.Length = 30
body30 = doc.addObject("PartDesign::Body", "Body029")

# Sketch on XY plane
sketch21 = body30.newObject("Sketcher::SketchObject", "Sketch020")
sketch21.AttachmentSupport = (doc.getObject("XY_Plane029"), [""])
sketch21.MapMode = "FlatFace"
sketch21.AttachmentOffset = App.Placement(V(0, 0, 20), App.Rotation())
sketch21.addGeometry([
    Part.LineSegment(V(12.5, 92, 0), V(12.5, 22, 0)),
    Part.LineSegment(V(12.5, 22, 0), V(27.5, 22, 0)),
    Part.LineSegment(V(27.5, 22, 0), V(27.5, 92, 0)),
    Part.LineSegment(V(27.5, 92, 0), V(12.5, 92, 0)),
], False)
sketch21.addConstraint([
    Sketcher.Constraint("Coincident", 0, 2, 1, 1),
    Sketcher.Constraint("Coincident", 1, 2, 2, 1),
    Sketcher.Constraint("Coincident", 2, 2, 3, 1),
    Sketcher.Constraint("Coincident", 3, 2, 0, 1),
    Sketcher.Constraint("Vertical", 0),
    Sketcher.Constraint("Horizontal", 1),
    Sketcher.Constraint("Vertical", 2),
    Sketcher.Constraint("Horizontal", 3),
    Sketcher.Constraint("DistanceX", 1, 1, 1, 2, 15.0),
    Sketcher.Constraint("DistanceY", 0, 2, 0, 1, 70.0),
    Sketcher.Constraint("DistanceY", -1, 1, 0, 2, 22.0),
    Sketcher.Constraint("DistanceX", -1, 1, 0, 2, 12.5),
])
pad21 = body30.newObject("PartDesign::Pad", "Pad020")
pad21.Profile = sketch21
pad21.Length = 6
body31 = doc.addObject("PartDesign::Body", "Body030")

# Sketch on XY plane
sketch22 = body31.newObject("Sketcher::SketchObject", "Sketch021")
sketch22.AttachmentSupport = (doc.getObject("XY_Plane030"), [""])
sketch22.MapMode = "FlatFace"
sketch22.AttachmentOffset = App.Placement(V(0, 0, 20), App.Rotation())
sketch22.addGeometry([
    Part.LineSegment(V(0, 51, 0), V(0, 0, 0)),
    Part.LineSegment(V(0, 0, 0), V(40, 0, 0)),
    Part.LineSegment(V(40, 0, 0), V(40, 51, 0)),
    Part.LineSegment(V(40, 51, 0), V(0, 51, 0)),
], False)
sketch22.addConstraint([
    Sketcher.Constraint("Coincident", 0, 2, 1, 1),
    Sketcher.Constraint("Coincident", 1, 2, 2, 1),
    Sketcher.Constraint("Coincident", 2, 2, 3, 1),
    Sketcher.Constraint("Coincident", 3, 2, 0, 1),
    Sketcher.Constraint("Vertical", 0),
    Sketcher.Constraint("Horizontal", 1),
    Sketcher.Constraint("Vertical", 2),
    Sketcher.Constraint("Horizontal", 3),
    Sketcher.Constraint("Coincident", 0, 2, -1, 1),
    Sketcher.Constraint("DistanceX", 1, 1, 1, 2, 40.0),
    Sketcher.Constraint("DistanceY", 0, 2, 0, 1, 51.0),
])
pad22 = body31.newObject("PartDesign::Pad", "Pad021")
pad22.Profile = sketch22
pad22.Length = 6
doc.recompute()

boolean23 = body31.newObject("PartDesign::Boolean", "Boolean022")
boolean23.Type = "Cut"
boolean23.addObjects([body30])
body32 = doc.addObject("PartDesign::Body", "Body031")
doc.recompute()

body31.Placement = App.Placement(V(-20, 0, -1), App.Rotation(V(0, 0, 1), 0))
boolean24 = body32.newObject("PartDesign::Boolean", "Boolean023")
boolean24.Type = "Fuse"
boolean24.addObjects([body31])
doc.recompute()

boolean25 = body32.newObject("PartDesign::Boolean", "Boolean024")
boolean25.Type = "Cut"
boolean25.addObjects([body29])
body33 = doc.addObject("PartDesign::Body", "Body032")
doc.recompute()

body32.Placement = App.Placement(V(0, -45, 0), App.Rotation(V(0, 0, 1), 0))
boolean26 = body33.newObject("PartDesign::Boolean", "Boolean025")
boolean26.Type = "Fuse"
boolean26.addObjects([body32])
doc.recompute()

boolean27 = body33.newObject("PartDesign::Boolean", "Boolean026")
boolean27.Type = "Fuse"
boolean27.addObjects([body27])
doc.recompute()

boolean28 = body33.newObject("PartDesign::Boolean", "Boolean027")
boolean28.Type = "Fuse"
boolean28.addObjects([body28])
doc.recompute()

boolean29 = body33.newObject("PartDesign::Boolean", "Boolean028")
boolean29.Type = "Fuse"
boolean29.addObjects([body26])
body34 = doc.addObject("PartDesign::Body", "Body033")

# Sketch on XY plane
sketch23 = body34.newObject("Sketcher::SketchObject", "Sketch022")
sketch23.AttachmentSupport = (doc.getObject("XY_Plane033"), [""])
sketch23.MapMode = "FlatFace"
sketch23.AttachmentOffset = App.Placement(V(0, 0, 6), App.Rotation())
sketch23.addGeometry([
    Part.LineSegment(V(-10, 61, 0), V(-10, 55, 0)),
    Part.LineSegment(V(-10, 55, 0), V(10, 55, 0)),
    Part.LineSegment(V(10, 55, 0), V(10, 61, 0)),
    Part.LineSegment(V(10, 61, 0), V(-10, 61, 0)),
], False)
sketch23.addConstraint([
    Sketcher.Constraint("Coincident", 0, 2, 1, 1),
    Sketcher.Constraint("Coincident", 1, 2, 2, 1),
    Sketcher.Constraint("Coincident", 2, 2, 3, 1),
    Sketcher.Constraint("Coincident", 3, 2, 0, 1),
    Sketcher.Constraint("Vertical", 0),
    Sketcher.Constraint("Horizontal", 1),
    Sketcher.Constraint("Vertical", 2),
    Sketcher.Constraint("Horizontal", 3),
    Sketcher.Constraint("DistanceX", 1, 1, 1, 2, 20.0),
    Sketcher.Constraint("DistanceY", 0, 2, 0, 1, 6.0),
    Sketcher.Constraint("DistanceX", 0, 2, -1, 1, 10.0),
    Sketcher.Constraint("DistanceY", -1, 1, 0, 2, 55.0),
])
pad23 = body34.newObject("PartDesign::Pad", "Pad022")
pad23.Profile = sketch23
pad23.Length = 30
body35 = doc.addObject("PartDesign::Body", "Body034")

# Sketch on XY plane
sketch24 = body35.newObject("Sketcher::SketchObject", "Sketch023")
sketch24.AttachmentSupport = (doc.getObject("XY_Plane034"), [""])
sketch24.MapMode = "FlatFace"
sketch24.addGeometry([
    Part.LineSegment(V(-20, 61, 0), V(-20, 55, 0)),
    Part.LineSegment(V(-20, 55, 0), V(20, 55, 0)),
    Part.LineSegment(V(20, 55, 0), V(20, 61, 0)),
    Part.LineSegment(V(20, 61, 0), V(-20, 61, 0)),
], False)
sketch24.addConstraint([
    Sketcher.Constraint("Coincident", 0, 2, 1, 1),
    Sketcher.Constraint("Coincident", 1, 2, 2, 1),
    Sketcher.Constraint("Coincident", 2, 2, 3, 1),
    Sketcher.Constraint("Coincident", 3, 2, 0, 1),
    Sketcher.Constraint("Vertical", 0),
    Sketcher.Constraint("Horizontal", 1),
    Sketcher.Constraint("Vertical", 2),
    Sketcher.Constraint("Horizontal", 3),
    Sketcher.Constraint("DistanceX", 1, 1, 1, 2, 40.0),
    Sketcher.Constraint("DistanceY", 0, 2, 0, 1, 6.0),
    Sketcher.Constraint("DistanceX", 0, 2, -1, 1, 20.0),
    Sketcher.Constraint("DistanceY", -1, 1, 0, 2, 55.0),
])
pad24 = body35.newObject("PartDesign::Pad", "Pad023")
pad24.Profile = sketch24
pad24.Length = 44.5
doc.recompute()

boolean30 = body35.newObject("PartDesign::Boolean", "Boolean029")
boolean30.Type = "Cut"
boolean30.addObjects([body34])
doc.recompute()

boolean31 = body35.newObject("PartDesign::Boolean", "Boolean030")
boolean31.Type = "Fuse"
boolean31.addObjects([body11])
doc.recompute()

boolean32 = body35.newObject("PartDesign::Boolean", "Boolean031")
boolean32.Type = "Fuse"
boolean32.addObjects([body33])
doc.recompute()

boolean33 = body35.newObject("PartDesign::Boolean", "Boolean032")
boolean33.Type = "Fuse"
boolean33.addObjects([body2])
doc.recompute()

boolean34 = body35.newObject("PartDesign::Boolean", "Boolean033")
boolean34.Type = "Cut"
boolean34.addObjects([body])

doc.recompute()
